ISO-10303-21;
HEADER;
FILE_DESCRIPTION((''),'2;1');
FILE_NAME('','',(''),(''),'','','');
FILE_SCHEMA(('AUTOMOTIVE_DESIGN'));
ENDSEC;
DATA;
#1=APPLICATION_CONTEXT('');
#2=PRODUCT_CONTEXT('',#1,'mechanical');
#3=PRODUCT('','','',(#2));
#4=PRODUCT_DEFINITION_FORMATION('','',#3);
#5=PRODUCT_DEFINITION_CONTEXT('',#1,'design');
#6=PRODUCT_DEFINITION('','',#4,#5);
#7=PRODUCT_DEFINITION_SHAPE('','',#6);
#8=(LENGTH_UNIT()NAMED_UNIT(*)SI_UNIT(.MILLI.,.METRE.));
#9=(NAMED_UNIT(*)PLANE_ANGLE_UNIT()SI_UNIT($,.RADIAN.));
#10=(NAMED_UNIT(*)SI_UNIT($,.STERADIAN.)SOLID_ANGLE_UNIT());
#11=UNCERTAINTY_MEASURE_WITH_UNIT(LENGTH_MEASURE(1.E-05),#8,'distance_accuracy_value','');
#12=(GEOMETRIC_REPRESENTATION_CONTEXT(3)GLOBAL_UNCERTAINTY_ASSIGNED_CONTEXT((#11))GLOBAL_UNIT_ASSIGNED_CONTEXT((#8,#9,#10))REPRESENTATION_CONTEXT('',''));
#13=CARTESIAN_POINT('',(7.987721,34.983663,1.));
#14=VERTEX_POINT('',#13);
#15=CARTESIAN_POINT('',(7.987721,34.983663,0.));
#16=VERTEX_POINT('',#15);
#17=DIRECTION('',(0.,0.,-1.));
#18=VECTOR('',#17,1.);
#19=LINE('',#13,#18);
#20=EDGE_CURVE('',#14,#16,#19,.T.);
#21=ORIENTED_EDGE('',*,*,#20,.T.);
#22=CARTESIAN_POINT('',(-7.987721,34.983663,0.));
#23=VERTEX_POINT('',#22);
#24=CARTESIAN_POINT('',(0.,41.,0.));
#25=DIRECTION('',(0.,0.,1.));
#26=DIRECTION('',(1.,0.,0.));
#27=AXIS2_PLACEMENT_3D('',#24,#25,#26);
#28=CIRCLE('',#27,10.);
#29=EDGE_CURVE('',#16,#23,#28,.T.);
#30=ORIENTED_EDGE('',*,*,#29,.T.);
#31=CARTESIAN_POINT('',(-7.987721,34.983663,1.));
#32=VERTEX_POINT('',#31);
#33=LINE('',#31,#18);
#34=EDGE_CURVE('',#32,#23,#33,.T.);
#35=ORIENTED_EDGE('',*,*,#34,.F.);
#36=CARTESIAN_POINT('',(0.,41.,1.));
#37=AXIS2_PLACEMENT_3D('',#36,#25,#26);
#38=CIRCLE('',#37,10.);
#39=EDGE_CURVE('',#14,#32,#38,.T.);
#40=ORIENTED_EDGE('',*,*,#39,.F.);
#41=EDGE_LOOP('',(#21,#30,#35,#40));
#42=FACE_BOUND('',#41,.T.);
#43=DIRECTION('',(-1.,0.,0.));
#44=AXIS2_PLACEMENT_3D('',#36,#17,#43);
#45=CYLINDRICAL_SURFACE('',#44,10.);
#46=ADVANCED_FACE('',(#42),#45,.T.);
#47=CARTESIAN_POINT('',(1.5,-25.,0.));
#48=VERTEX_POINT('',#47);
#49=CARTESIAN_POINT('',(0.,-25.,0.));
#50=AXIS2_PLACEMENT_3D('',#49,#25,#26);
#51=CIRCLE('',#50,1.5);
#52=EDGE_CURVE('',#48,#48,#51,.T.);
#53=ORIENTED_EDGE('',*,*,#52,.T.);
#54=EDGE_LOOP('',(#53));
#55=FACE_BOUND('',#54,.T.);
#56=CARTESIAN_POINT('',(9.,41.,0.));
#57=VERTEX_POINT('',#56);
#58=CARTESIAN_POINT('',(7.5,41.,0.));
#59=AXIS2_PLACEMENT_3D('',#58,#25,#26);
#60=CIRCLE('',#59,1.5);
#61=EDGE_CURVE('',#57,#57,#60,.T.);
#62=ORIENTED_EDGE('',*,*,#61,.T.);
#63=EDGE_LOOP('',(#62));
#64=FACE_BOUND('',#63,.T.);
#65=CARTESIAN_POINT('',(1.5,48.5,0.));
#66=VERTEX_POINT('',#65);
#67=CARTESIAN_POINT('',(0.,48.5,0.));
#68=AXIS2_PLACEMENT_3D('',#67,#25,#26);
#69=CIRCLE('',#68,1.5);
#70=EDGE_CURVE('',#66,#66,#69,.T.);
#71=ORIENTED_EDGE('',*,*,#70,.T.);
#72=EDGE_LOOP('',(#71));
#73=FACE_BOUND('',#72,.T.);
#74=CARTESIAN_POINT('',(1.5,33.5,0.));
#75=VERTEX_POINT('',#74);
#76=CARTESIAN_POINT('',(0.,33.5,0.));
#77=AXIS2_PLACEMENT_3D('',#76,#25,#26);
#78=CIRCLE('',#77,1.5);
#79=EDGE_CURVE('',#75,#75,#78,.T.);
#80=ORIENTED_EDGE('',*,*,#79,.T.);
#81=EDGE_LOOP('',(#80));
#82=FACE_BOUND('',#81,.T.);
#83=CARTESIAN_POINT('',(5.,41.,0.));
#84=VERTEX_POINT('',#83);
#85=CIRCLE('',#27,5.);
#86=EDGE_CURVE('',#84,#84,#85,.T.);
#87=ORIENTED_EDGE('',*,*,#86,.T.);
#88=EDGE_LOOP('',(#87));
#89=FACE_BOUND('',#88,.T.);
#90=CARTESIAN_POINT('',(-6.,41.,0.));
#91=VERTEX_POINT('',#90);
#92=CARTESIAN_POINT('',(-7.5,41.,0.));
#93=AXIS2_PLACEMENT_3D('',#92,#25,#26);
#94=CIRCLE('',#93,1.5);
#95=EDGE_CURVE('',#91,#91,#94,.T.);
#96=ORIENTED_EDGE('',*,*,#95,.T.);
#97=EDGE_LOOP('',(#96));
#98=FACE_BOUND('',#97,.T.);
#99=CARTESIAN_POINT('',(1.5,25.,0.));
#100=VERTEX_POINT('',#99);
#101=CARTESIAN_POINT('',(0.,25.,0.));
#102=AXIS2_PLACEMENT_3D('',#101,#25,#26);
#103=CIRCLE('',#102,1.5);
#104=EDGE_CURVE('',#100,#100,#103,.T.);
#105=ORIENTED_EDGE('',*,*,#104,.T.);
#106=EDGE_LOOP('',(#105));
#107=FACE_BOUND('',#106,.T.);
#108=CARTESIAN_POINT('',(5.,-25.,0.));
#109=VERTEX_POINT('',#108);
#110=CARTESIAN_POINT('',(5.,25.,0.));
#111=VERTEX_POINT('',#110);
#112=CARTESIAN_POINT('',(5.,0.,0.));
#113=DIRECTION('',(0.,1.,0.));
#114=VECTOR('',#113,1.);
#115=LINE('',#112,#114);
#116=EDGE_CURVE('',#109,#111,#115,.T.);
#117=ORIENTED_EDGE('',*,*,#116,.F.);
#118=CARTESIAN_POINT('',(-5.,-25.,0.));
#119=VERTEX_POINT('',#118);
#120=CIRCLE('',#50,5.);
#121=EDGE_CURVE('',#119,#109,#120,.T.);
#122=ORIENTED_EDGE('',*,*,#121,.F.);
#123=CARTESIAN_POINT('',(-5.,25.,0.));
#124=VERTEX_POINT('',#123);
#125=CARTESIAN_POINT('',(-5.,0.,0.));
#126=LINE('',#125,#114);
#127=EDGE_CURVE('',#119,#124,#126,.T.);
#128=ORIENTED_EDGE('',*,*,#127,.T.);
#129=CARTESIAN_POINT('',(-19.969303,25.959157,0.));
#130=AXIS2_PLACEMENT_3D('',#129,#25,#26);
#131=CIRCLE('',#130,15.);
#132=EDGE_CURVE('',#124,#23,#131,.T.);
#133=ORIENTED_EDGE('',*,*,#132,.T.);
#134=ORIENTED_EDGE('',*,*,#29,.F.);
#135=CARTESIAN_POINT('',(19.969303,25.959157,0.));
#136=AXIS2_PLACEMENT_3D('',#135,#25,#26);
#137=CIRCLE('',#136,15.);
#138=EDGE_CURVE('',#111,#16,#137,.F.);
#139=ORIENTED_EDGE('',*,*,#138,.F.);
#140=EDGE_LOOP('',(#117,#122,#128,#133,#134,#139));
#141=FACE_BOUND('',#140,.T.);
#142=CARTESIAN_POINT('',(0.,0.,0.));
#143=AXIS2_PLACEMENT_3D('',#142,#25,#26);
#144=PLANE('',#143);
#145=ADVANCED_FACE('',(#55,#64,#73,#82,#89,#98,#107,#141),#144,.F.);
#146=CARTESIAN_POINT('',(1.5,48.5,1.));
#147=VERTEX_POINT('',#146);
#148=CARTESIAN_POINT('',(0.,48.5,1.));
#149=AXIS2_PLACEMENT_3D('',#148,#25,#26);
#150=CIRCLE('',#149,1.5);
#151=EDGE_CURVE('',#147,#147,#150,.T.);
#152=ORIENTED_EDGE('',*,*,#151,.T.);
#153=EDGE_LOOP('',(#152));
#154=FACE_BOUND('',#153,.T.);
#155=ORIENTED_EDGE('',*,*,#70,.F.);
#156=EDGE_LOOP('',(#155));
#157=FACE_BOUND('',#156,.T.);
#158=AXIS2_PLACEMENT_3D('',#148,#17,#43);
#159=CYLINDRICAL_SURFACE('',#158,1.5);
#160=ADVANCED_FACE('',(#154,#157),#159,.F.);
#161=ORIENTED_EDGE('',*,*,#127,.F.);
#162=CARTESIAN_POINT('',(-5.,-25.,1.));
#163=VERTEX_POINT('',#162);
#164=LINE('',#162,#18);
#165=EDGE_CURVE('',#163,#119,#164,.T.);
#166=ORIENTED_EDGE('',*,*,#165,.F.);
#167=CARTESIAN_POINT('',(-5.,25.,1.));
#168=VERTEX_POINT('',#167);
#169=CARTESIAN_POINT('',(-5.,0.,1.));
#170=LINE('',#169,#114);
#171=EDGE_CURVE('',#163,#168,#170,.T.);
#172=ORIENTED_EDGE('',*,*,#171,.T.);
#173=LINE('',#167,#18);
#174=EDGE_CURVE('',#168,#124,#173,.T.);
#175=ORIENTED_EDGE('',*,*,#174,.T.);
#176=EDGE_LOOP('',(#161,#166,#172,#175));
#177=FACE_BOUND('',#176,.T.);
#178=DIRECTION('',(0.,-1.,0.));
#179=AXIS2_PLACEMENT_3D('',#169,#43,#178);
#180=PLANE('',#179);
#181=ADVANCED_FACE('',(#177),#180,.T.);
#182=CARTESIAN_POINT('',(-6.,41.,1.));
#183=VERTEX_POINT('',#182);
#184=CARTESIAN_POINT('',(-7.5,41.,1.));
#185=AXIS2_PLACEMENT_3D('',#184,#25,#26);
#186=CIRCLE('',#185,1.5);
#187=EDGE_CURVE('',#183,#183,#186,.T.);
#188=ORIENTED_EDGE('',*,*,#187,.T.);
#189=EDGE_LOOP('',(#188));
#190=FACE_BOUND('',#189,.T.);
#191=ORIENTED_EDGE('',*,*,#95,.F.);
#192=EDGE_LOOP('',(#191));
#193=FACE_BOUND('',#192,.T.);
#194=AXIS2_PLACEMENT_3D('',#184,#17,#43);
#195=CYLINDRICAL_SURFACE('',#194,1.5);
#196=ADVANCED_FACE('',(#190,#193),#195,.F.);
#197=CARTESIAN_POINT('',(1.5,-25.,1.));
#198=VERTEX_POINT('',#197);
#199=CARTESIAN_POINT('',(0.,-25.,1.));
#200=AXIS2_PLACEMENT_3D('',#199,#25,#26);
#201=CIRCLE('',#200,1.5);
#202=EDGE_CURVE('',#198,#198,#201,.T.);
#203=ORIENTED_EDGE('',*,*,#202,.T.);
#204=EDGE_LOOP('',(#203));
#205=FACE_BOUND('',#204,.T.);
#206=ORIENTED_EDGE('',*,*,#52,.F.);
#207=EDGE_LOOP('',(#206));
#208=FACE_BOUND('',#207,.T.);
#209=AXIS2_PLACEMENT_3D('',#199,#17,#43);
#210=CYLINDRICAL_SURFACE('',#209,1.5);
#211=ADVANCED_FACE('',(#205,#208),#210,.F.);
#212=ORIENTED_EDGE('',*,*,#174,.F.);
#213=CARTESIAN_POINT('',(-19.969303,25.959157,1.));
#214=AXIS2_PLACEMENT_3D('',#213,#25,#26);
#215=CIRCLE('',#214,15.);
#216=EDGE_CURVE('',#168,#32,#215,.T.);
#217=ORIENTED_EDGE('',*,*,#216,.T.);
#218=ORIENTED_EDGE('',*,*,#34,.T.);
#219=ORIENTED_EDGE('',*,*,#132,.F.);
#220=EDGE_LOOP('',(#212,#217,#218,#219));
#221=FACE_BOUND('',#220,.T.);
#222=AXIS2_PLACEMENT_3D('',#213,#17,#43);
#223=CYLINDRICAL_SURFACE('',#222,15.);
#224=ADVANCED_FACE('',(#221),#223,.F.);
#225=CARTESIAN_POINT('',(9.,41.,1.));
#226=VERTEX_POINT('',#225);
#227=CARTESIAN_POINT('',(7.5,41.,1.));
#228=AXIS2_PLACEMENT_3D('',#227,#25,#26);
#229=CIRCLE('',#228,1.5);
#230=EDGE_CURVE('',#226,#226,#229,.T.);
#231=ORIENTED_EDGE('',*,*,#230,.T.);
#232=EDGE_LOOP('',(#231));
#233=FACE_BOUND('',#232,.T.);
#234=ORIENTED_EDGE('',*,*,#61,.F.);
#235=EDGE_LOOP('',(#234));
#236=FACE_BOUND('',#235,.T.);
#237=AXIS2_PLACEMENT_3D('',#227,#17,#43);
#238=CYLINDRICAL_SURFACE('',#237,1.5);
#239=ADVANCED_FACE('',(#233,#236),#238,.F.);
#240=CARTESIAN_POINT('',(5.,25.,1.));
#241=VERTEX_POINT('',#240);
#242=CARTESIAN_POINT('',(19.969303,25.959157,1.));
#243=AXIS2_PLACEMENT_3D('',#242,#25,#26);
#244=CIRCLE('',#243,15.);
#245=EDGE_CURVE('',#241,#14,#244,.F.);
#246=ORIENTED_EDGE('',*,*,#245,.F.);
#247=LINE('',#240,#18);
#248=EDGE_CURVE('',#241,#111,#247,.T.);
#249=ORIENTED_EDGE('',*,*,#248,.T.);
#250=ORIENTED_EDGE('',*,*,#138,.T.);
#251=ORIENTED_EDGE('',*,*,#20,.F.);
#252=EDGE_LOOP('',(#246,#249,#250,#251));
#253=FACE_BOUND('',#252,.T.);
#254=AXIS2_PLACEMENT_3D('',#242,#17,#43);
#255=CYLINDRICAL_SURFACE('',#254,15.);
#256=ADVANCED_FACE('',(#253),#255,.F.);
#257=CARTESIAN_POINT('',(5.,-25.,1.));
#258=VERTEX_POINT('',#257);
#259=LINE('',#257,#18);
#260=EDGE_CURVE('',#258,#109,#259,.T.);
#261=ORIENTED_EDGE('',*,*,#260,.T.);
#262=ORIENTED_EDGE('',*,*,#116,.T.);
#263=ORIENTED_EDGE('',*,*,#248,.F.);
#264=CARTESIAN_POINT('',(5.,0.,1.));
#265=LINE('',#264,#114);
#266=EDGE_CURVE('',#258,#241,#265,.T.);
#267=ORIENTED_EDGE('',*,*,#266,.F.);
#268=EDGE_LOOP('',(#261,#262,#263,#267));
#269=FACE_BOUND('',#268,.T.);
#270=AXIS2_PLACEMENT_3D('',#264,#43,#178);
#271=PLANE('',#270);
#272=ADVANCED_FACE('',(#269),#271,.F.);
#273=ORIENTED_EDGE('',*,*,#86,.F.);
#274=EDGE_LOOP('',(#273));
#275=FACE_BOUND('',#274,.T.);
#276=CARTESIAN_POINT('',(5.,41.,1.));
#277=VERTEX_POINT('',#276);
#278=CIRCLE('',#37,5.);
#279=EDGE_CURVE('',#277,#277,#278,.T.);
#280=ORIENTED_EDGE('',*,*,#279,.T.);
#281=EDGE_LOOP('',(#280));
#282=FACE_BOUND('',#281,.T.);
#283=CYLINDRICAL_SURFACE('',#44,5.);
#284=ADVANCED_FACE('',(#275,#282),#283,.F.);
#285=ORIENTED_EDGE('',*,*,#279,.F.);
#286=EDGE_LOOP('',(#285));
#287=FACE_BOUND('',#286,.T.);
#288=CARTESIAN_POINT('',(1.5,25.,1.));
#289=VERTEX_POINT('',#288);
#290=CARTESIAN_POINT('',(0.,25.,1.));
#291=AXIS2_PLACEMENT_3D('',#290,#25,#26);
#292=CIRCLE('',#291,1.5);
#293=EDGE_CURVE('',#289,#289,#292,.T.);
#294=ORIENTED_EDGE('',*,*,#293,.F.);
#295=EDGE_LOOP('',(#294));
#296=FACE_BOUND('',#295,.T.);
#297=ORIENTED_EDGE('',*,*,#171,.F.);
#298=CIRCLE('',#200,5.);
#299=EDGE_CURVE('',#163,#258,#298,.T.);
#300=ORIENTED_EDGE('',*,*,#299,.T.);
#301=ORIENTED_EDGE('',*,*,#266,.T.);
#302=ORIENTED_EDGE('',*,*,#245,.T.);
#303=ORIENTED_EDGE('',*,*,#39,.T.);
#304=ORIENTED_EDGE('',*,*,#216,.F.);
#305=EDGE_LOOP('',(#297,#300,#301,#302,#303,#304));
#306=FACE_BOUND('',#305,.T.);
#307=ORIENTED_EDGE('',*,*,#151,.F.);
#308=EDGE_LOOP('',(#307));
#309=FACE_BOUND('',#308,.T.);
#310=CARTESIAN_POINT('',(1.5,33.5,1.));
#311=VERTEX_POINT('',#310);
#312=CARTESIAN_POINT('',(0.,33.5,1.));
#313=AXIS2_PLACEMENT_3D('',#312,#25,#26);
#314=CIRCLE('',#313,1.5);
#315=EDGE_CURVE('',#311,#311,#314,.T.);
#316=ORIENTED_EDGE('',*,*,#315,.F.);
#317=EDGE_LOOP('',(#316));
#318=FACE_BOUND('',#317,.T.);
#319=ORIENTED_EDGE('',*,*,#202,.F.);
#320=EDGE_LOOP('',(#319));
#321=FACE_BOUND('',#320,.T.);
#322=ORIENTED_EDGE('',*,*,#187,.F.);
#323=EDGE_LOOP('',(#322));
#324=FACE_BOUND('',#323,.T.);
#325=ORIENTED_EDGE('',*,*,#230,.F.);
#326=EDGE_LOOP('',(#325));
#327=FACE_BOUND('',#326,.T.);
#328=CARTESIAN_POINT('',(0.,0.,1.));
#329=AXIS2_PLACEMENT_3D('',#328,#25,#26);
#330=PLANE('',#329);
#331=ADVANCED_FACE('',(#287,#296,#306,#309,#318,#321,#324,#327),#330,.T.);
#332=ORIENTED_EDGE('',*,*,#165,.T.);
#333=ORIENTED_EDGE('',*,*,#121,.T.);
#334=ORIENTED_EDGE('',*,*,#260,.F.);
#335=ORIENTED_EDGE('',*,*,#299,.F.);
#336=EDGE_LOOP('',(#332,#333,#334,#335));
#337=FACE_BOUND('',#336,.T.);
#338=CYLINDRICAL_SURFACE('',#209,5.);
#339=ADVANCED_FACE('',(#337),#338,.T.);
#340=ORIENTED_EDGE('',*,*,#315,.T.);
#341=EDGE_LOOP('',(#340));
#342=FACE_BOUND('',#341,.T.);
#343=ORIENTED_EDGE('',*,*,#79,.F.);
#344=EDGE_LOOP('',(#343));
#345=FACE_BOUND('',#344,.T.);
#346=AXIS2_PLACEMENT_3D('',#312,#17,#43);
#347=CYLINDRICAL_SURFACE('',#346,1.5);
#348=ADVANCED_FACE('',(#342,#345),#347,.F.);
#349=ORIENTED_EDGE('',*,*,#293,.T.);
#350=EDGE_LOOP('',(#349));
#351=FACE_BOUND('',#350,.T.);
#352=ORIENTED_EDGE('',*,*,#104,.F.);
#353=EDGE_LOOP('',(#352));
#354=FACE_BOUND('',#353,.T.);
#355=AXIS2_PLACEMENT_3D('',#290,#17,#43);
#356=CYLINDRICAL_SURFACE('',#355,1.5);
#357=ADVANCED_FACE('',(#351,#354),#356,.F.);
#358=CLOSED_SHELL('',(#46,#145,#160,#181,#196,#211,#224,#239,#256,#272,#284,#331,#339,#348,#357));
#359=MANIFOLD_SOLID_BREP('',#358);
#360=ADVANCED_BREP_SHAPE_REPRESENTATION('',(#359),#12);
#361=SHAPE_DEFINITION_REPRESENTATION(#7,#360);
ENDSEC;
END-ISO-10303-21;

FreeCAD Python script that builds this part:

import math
import FreeCAD as App
import Part
import Sketcher
Q = App.Units.Quantity

doc = App.newDocument("Part")
params = doc.addObject("Spreadsheet::Sheet", "Params")
for row, (alias, value) in enumerate([
    ("sketch1_diameter", "3 mm"),
    ("sketch1_diameter2", "10 mm"),
    ("sketch1_radius", "15 mm"),
    ("sketch1_radius2", "10 mm"),
    ("sketch1_height", "50 mm"),
    ("pad1_length", "1 mm"),
], start=1):
    params.set(f"A{row}", alias)
    params.set(f"B{row}", "=" + value)
    params.setAlias(f"B{row}", alias)

body = doc.addObject("PartDesign::Body", "Body")

# Sketch on XY plane
sketch1 = body.newObject("Sketcher::SketchObject", "Sketch")
sketch1.AttachmentSupport = (doc.getObject("XY_Plane"), [""])
sketch1.MapMode = "FlatFace"
sketch1.addGeometry([
    Part.LineSegment(App.Vector(-5, 25, 0), App.Vector(-5, -25, 0)),  # 0
    Part.ArcOfCircle(Part.Circle(App.Vector(0, -25, 0), App.Vector(0, 0, 1), 5), math.radians(180), math.radians(360)),  # 1
    Part.LineSegment(App.Vector(5, -25, 0), App.Vector(5, 25, 0)),  # 2
    Part.ArcOfCircle(Part.Circle(App.Vector(19.969303, 25.959157, 0), App.Vector(0, 0, 1), 15), math.radians(143.013006), math.radians(183.666211)),  # 3
    Part.ArcOfCircle(Part.Circle(App.Vector(0, 41, 0), App.Vector(0, 0, 1), 10), math.radians(-36.986994), math.radians(216.986994)),  # 4
    Part.ArcOfCircle(Part.Circle(App.Vector(-19.969303, 25.959157, 0), App.Vector(0, 0, 1), 15), math.radians(-3.666211), math.radians(36.986994)),  # 5
    Part.Circle(App.Vector(0, -25, 0), App.Vector(0, 0, 1), 1.5),  # 6
    Part.Circle(App.Vector(-7.5, 41, 0), App.Vector(0, 0, 1), 1.5),  # 7
    Part.Circle(App.Vector(0, 25, 0), App.Vector(0, 0, 1), 1.5),  # 8
    Part.Circle(App.Vector(0, 33.5, 0), App.Vector(0, 0, 1), 1.5),  # 9
    Part.Circle(App.Vector(0, 41, 0), App.Vector(0, 0, 1), 5),  # 10
    Part.Circle(App.Vector(0, 48.5, 0), App.Vector(0, 0, 1), 1.5),  # 11
    Part.Circle(App.Vector(7.5, 41, 0), App.Vector(0, 0, 1), 1.5),  # 12
], False)
sketch1.addConstraint([
    Sketcher.Constraint("Tangent", 0, 2, 1, 1),
    Sketcher.Constraint("Tangent", 1, 2, 2, 1),
    Sketcher.Constraint("Coincident", 2, 2, 3, 2),
    Sketcher.Constraint("Tangent", 3, 1, 4, 1),
    Sketcher.Constraint("Tangent", 4, 2, 5, 2),
    Sketcher.Constraint("Coincident", 5, 1, 0, 1),
    Sketcher.Constraint("Vertical", 0),
    Sketcher.Constraint("Vertical", 2),
    Sketcher.Constraint("Coincident", 6, 3, 1, 3),
    Sketcher.Constraint("Coincident", 10, 3, 4, 3),
    Sketcher.Constraint("Equal", 3, 5),
    Sketcher.Constraint("Equal", 6, 7),
    Sketcher.Constraint("Equal", 7, 8),
    Sketcher.Constraint("Equal", 8, 9),
    Sketcher.Constraint("Equal", 1, 10),
    Sketcher.Constraint("Equal", 9, 11),
    Sketcher.Constraint("Equal", 11, 12),
    Sketcher.Constraint("Symmetric", 1, 3, 8, 3, -1, 1),
    Sketcher.Constraint("Symmetric", 0, 2, 2, 2, -1, 1),
    Sketcher.Constraint("Symmetric", 3, 3, 5, 3, -2),
    Sketcher.Constraint("Symmetric", 7, 3, 12, 3, -2),
    Sketcher.Constraint("PointOnObject", 9, 3, -2),
    Sketcher.Constraint("PointOnObject", 11, 3, -2),
    Sketcher.Constraint("Horizontal", 4, 3, 7, 3),
    Sketcher.Constraint("Diameter", 6, Q("3 mm")),
    Sketcher.Constraint("Diameter", 10, Q("10 mm")),
    Sketcher.Constraint("Radius", 3, Q("15 mm")),
    Sketcher.Constraint("Radius", 4, Q("10 mm")),
    Sketcher.Constraint("DistanceY", 0, 2, 0, 1, Q("50 mm")),
    Sketcher.Constraint("DistanceY", -1, 1, 4, 3, Q("41 mm")),
    Sketcher.Constraint("DistanceY", 9, 3, 11, 3, Q("15 mm")),
    Sketcher.Constraint("DistanceX", 7, 3, 12, 3, Q("15 mm")),
    Sketcher.Constraint("DistanceY", -1, 1, 9, 3, Q("33.5 mm")),
])
sketch1.setExpression("Constraints[24]", "Params.sketch1_diameter")
sketch1.setExpression("Constraints[25]", "Params.sketch1_diameter2")
sketch1.setExpression("Constraints[26]", "Params.sketch1_radius")
sketch1.setExpression("Constraints[27]", "Params.sketch1_radius2")
sketch1.setExpression("Constraints[28]", "Params.sketch1_height")
pad1 = body.newObject("PartDesign::Pad", "Pad")
pad1.Profile = sketch1
pad1.setExpression("Length", "Params.pad1_length")

doc.recompute()
